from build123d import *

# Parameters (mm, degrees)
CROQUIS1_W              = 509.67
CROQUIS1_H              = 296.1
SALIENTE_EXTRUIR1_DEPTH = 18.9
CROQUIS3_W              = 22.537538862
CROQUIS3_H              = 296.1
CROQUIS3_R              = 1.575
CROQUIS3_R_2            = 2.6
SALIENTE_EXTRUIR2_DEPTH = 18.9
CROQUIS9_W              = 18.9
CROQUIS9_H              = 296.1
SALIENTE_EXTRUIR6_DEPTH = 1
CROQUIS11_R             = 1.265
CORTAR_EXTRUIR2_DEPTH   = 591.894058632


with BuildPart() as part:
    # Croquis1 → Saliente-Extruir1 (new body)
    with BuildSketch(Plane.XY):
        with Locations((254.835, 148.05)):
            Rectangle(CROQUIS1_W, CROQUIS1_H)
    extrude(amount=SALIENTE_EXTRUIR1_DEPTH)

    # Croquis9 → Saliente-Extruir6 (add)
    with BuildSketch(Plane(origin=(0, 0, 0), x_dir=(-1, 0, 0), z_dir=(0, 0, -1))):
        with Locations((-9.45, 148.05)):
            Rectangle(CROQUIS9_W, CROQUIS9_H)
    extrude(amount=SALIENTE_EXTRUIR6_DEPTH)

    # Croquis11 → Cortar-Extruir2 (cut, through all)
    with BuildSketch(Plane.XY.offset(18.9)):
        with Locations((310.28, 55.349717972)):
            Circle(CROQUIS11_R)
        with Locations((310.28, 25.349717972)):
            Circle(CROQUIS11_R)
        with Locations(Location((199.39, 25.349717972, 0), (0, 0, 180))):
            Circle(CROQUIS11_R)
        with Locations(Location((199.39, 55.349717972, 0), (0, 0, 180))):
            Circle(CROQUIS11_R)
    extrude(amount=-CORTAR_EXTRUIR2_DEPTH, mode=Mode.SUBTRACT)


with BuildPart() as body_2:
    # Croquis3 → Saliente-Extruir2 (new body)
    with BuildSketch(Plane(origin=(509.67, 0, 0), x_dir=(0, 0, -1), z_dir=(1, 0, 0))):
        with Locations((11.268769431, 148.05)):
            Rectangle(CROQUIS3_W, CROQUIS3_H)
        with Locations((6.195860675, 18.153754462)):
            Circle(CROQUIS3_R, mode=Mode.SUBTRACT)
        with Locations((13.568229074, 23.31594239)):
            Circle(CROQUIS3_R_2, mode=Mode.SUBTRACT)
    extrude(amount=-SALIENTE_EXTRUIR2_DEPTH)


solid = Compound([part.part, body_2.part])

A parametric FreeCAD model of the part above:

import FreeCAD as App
import Part
import Sketcher

V = App.Vector

doc = App.newDocument("Part")
body = doc.addObject("PartDesign::Body", "Body")

# Sketch on XY plane
sketch1 = body.newObject("Sketcher::SketchObject", "Sketch")
sketch1.AttachmentSupport = (doc.getObject("XY_Plane"), [""])
sketch1.MapMode = "FlatFace"
sketch1.addGeometry([
    Part.LineSegment(V(0, 296.1, 0), V(0, 0, 0)),
    Part.LineSegment(V(0, 0, 0), V(509.67, 0, 0)),
    Part.LineSegment(V(509.67, 0, 0), V(509.67, 296.1, 0)),
    Part.LineSegment(V(509.67, 296.1, 0), V(0, 296.1, 0)),
], False)
sketch1.addConstraint([
    Sketcher.Constraint("Coincident", 0, 2, 1, 1),
    Sketcher.Constraint("Coincident", 1, 2, 2, 1),
    Sketcher.Constraint("Coincident", 2, 2, 3, 1),
    Sketcher.Constraint("Coincident", 3, 2, 0, 1),
    Sketcher.Constraint("Vertical", 0),
    Sketcher.Constraint("Horizontal", 1),
    Sketcher.Constraint("Vertical", 2),
    Sketcher.Constraint("Horizontal", 3),
    Sketcher.Constraint("Coincident", 0, 2, -1, 1),
    Sketcher.Constraint("DistanceY", 0, 2, 0, 1, 296.1),
    Sketcher.Constraint("DistanceX", 1, 1, 1, 2, 509.67),
])
pad1 = body.newObject("PartDesign::Pad", "Pad")
pad1.Profile = sketch1
pad1.Length = 18.9

# Sketch on XY plane
sketch2 = body.newObject("Sketcher::SketchObject", "Sketch001")
sketch2.AttachmentSupport = (doc.getObject("XY_Plane"), [""])
sketch2.MapMode = "FlatFace"
sketch2.addGeometry([
    Part.LineSegment(V(18.9, 296.1, 0), V(18.9, 0, 0)),
    Part.LineSegment(V(18.9, 0, 0), V(0, 0, 0)),
    Part.LineSegment(V(0, 0, 0), V(0, 296.1, 0)),
    Part.LineSegment(V(0, 296.1, 0), V(18.9, 296.1, 0)),
], False)
sketch2.addConstraint([
    Sketcher.Constraint("Coincident", 0, 2, 1, 1),
    Sketcher.Constraint("Coincident", 1, 2, 2, 1),
    Sketcher.Constraint("Coincident", 2, 2, 3, 1),
    Sketcher.Constraint("Coincident", 3, 2, 0, 1),
    Sketcher.Constraint("Vertical", 0),
    Sketcher.Constraint("Horizontal", 1),
    Sketcher.Constraint("Vertical", 2),
    Sketcher.Constraint("Horizontal", 3),
    Sketcher.Constraint("Coincident", 1, 2, -1, 1),
    Sketcher.Constraint("DistanceX", 1, 2, 1, 1, 18.9),
    Sketcher.Constraint("DistanceY", 0, 2, 0, 1, 296.1),
])
pad2 = body.newObject("PartDesign::Pad", "Pad001")
pad2.Profile = sketch2
pad2.Length = 1
pad2.Reversed = True

# Sketch on XY plane
sketch3 = body.newObject("Sketcher::SketchObject", "Sketch002")
sketch3.AttachmentSupport = (doc.getObject("XY_Plane"), [""])
sketch3.MapMode = "FlatFace"
sketch3.AttachmentOffset = App.Placement(V(0, 0, 18.9), App.Rotation())
sketch3.addGeometry([
    Part.Circle(V(310.28, 55.349718, 0), V(0, 0, 1), 1.265),
    Part.Circle(V(310.28, 25.349718, 0), V(0, 0, 1), 1.265),
    Part.Circle(V(199.39, 25.349718, 0), V(0, 0, 1), 1.265),
    Part.Circle(V(199.39, 55.349718, 0), V(0, 0, 1), 1.265),
], False)
sketch3.addConstraint([
    Sketcher.Constraint("Equal", 0, 1),
    Sketcher.Constraint("Equal", 1, 2),
    Sketcher.Constraint("Equal", 2, 3),
    Sketcher.Constraint("Horizontal", 1, 3, 2, 3),
    Sketcher.Constraint("Horizontal", 0, 3, 3, 3),
    Sketcher.Constraint("Vertical", 0, 3, 1, 3),
    Sketcher.Constraint("Vertical", 2, 3, 3, 3),
    Sketcher.Constraint("Diameter", 0, 2.53),
    Sketcher.Constraint("DistanceY", 1, 3, 0, 3, 30.0),
    Sketcher.Constraint("DistanceX", -1, 1, 0, 3, 310.28),
    Sketcher.Constraint("DistanceX", -1, 1, 2, 3, 199.39),
    Sketcher.Constraint("DistanceY", -1, 1, 0, 3, 55.349718),
])
pocket1 = body.newObject("PartDesign::Pocket", "Pocket")
pocket1.Profile = sketch3
pocket1.Type = "ThroughAll"
body2 = doc.addObject("PartDesign::Body", "Body001")

# Sketch on YZ plane
sketch4 = body2.newObject("Sketcher::SketchObject", "Sketch003")
sketch4.AttachmentSupport = (doc.getObject("YZ_Plane001"), [""])
sketch4.MapMode = "FlatFace"
sketch4.AttachmentOffset = App.Placement(V(0, 0, 509.67), App.Rotation())
sketch4.addGeometry([
    Part.LineSegment(V(296.1, 0, 0), V(0, 0, 0)),  # 0
    Part.LineSegment(V(0, 0, 0), V(0, -22.537539, 0)),  # 1
    Part.LineSegment(V(0, -22.537539, 0), V(296.1, -22.537539, 0)),  # 2
    Part.LineSegment(V(296.1, -22.537539, 0), V(296.1, 0, 0)),  # 3
    Part.Circle(V(18.153754, -6.195861, 0), V(0, 0, 1), 1.575),  # 4
    Part.Circle(V(23.315942, -13.568229, 0), V(0, 0, 1), 2.6),  # 5
], False)
sketch4.addConstraint([
    Sketcher.Constraint("Coincident", 0, 2, 1, 1),
    Sketcher.Constraint("Coincident", 1, 2, 2, 1),
    Sketcher.Constraint("Coincident", 2, 2, 3, 1),
    Sketcher.Constraint("Coincident", 3, 2, 0, 1),
    Sketcher.Constraint("Horizontal", 0),
    Sketcher.Constraint("Vertical", 1),
    Sketcher.Constraint("Horizontal", 2),
    Sketcher.Constraint("Vertical", 3),
    Sketcher.Constraint("Coincident", 0, 2, -1, 1),
    Sketcher.Constraint("Diameter", 5, 5.2),
    Sketcher.Constraint("Diameter", 4, 3.15),
    Sketcher.Constraint("DistanceX", 0, 2, 0, 1, 296.1),
    Sketcher.Constraint("DistanceY", 1, 2, 1, 1, 22.537539),
    Sketcher.Constraint("DistanceY", 4, 3, -1, 1, 6.195861),
    Sketcher.Constraint("DistanceY", 5, 3, -1, 1, 13.568229),
    Sketcher.Constraint("DistanceX", -1, 1, 4, 3, 18.153754),
    Sketcher.Constraint("DistanceX", -1, 1, 5, 3, 23.315942),
])
pad3 = body2.newObject("PartDesign::Pad", "Pad002")
pad3.Profile = sketch4
pad3.Length = 18.9
pad3.Reversed = True

doc.recompute()
